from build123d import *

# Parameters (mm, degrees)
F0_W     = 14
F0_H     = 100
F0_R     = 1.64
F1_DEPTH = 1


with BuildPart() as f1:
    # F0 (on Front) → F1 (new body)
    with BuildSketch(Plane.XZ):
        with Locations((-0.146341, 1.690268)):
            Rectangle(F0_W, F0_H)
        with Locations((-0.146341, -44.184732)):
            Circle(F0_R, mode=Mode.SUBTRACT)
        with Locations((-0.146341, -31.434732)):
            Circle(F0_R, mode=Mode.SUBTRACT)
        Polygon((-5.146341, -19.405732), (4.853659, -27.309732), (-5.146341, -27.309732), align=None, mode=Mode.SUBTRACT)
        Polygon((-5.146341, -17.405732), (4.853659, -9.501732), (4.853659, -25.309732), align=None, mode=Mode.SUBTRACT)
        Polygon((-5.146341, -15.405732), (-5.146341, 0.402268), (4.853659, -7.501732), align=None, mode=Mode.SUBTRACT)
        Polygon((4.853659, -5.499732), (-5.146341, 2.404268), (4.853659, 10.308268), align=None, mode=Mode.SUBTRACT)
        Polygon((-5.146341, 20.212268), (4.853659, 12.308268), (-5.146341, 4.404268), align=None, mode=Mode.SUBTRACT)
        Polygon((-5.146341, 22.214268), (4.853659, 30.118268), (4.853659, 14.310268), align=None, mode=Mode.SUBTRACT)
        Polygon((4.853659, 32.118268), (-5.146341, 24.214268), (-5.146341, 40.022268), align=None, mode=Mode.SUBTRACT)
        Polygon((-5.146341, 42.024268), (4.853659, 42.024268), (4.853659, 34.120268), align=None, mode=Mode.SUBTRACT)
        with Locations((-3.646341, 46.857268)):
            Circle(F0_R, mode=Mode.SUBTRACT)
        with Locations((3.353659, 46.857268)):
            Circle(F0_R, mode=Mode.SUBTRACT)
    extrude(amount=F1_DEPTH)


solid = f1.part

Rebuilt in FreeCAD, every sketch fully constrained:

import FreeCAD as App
import Part
import Sketcher
Q = App.Units.Quantity


def add_polygon(sketch, points):
    """Adds a closed chain of lines whose ends are joined by coincident constraints."""
    first, n = sketch.GeometryCount, len(points)
    for a, b in zip(points, points[1:] + points[:1]):
        sketch.addGeometry(Part.LineSegment(App.Vector(*a, 0), App.Vector(*b, 0)), False)
    for i in range(n):
        sketch.addConstraint(Sketcher.Constraint("Coincident", first + i, 2, first + (i + 1) % n, 1))

doc = App.newDocument("Part")
body = doc.addObject("PartDesign::Body", "Body")

# Sketch on XZ plane
sketch1 = body.newObject("Sketcher::SketchObject", "Sketch")
sketch1.AttachmentSupport = (doc.getObject("XZ_Plane"), [""])
sketch1.MapMode = "FlatFace"
add_polygon(sketch1, [(-7.1, 51.7), (-7.1, -48.3), (6.9, -48.3), (6.9, 51.7)])  # lines 0-3
sketch1.addGeometry(Part.Circle(App.Vector(-0.1, -44.2, 0), App.Vector(0, 0, 1), 1.6), False)  # 4
sketch1.addGeometry(Part.Circle(App.Vector(-0.1, -31.4, 0), App.Vector(0, 0, 1), 1.6), False)  # 5
add_polygon(sketch1, [(-5.1, -27.3), (-5.1, -19.4), (4.9, -27.3)])  # lines 6-8
add_polygon(sketch1, [(4.9, -25.3), (-5.1, -17.4), (4.9, -9.5)])  # lines 9-11
add_polygon(sketch1, [(4.9, -7.5), (-5.1, -15.4), (-5.1, 0.4)])  # lines 12-14
sketch1.addGeometry(Part.Circle(App.Vector(-3.6, 46.9, 0), App.Vector(0, 0, 1), 1.6), False)  # 15
add_polygon(sketch1, [(4.9, 10.3), (4.9, -5.5), (-5.1, 2.4)])  # lines 16-18
add_polygon(sketch1, [(-5.1, 4.4), (-5.1, 20.2), (4.9, 12.3)])  # lines 19-21
add_polygon(sketch1, [(4.9, 14.3), (-5.1, 22.2), (4.9, 30.1)])  # lines 22-24
add_polygon(sketch1, [(-5.1, 40), (4.9, 32.1), (-5.1, 24.2)])  # lines 25-27
add_polygon(sketch1, [(4.9, 34.1), (-5.1, 42), (4.9, 42)])  # lines 28-30
sketch1.addGeometry(Part.Circle(App.Vector(3.4, 46.9, 0), App.Vector(0, 0, 1), 1.6), False)  # 31
sketch1.addConstraint([
    Sketcher.Constraint("Vertical", 0),
    Sketcher.Constraint("Horizontal", 1),
    Sketcher.Constraint("Vertical", 2),
    Sketcher.Constraint("Horizontal", 3),
    Sketcher.Constraint("Vertical", 6),
    Sketcher.Constraint("Horizontal", 8),
    Sketcher.Constraint("Vertical", 11),
    Sketcher.Constraint("Vertical", 13),
    Sketcher.Constraint("Vertical", 16),
    Sketcher.Constraint("Vertical", 19),
    Sketcher.Constraint("Vertical", 24),
    Sketcher.Constraint("Vertical", 27),
    Sketcher.Constraint("Horizontal", 29),
    Sketcher.Constraint("Vertical", 30),
    Sketcher.Constraint("Equal", 4, 5),
    Sketcher.Constraint("Equal", 5, 15),
    Sketcher.Constraint("Equal", 15, 31),
    Sketcher.Constraint("Parallel", 7, 9),
    Sketcher.Constraint("Parallel", 10, 12),
    Sketcher.Constraint("Parallel", 9, 14),
    Sketcher.Constraint("Parallel", 14, 17),
    Sketcher.Constraint("Parallel", 12, 18),
    Sketcher.Constraint("Parallel", 17, 20),
    Sketcher.Constraint("Parallel", 18, 21),
    Sketcher.Constraint("Parallel", 20, 22),
    Sketcher.Constraint("Parallel", 21, 23),
    Sketcher.Constraint("Parallel", 22, 25),
    Sketcher.Constraint("Parallel", 23, 26),
    Sketcher.Constraint("Parallel", 25, 28),
    Sketcher.Constraint("Horizontal", 15, 3, 31, 3),
    Sketcher.Constraint("Vertical", 4, 3, 5, 3),
    Sketcher.Constraint("Vertical", 8, 2, 9, 2),
    Sketcher.Constraint("Vertical", 7, 2, 10, 2),
    Sketcher.Constraint("Vertical", 9, 2, 12, 2),
    Sketcher.Constraint("Vertical", 11, 2, 14, 2),
    Sketcher.Constraint("Vertical", 14, 2, 16, 2),
    Sketcher.Constraint("Vertical", 13, 2, 17, 2),
    Sketcher.Constraint("Vertical", 17, 2, 19, 2),
    Sketcher.Constraint("Vertical", 18, 2, 20, 2),
    Sketcher.Constraint("Vertical", 21, 2, 22, 2),
    Sketcher.Constraint("Vertical", 20, 2, 23, 2),
    Sketcher.Constraint("Vertical", 24, 2, 25, 2),
    Sketcher.Constraint("Vertical", 22, 2, 26, 2),
    Sketcher.Constraint("Vertical", 27, 2, 28, 2),
    Sketcher.Constraint("Vertical", 25, 2, 29, 2),
    Sketcher.Constraint("Equal", 9, 10),
    Sketcher.Constraint("Diameter", 4, Q("3.28 mm")),
    Sketcher.Constraint("DistanceX", 1, 1, 1, 2, Q("14 mm")),
    Sketcher.Constraint("DistanceX", 8, 2, 8, 1, Q("10 mm")),
    Sketcher.Constraint("DistanceY", 0, 2, 0, 1, Q("100 mm")),
    Sketcher.Constraint("DistanceX", 15, 3, 31, 3, Q("7 mm")),
    Sketcher.Constraint("DistanceX", 0, 2, 4, 3, Q("7 mm")),
    Sketcher.Constraint("DistanceX", 6, 2, 5, 3, Q("5 mm")),
    Sketcher.Constraint("DistanceY", 1, 2, 7, 2, Q("21 mm")),
    Sketcher.Constraint("DistanceY", 6, 2, 9, 2, Q("2 mm")),
    Sketcher.Constraint("DistanceY", 9, 2, 12, 2, Q("2 mm")),
    Sketcher.Constraint("DistanceY", 18, 2, 20, 2, Q("2 mm")),
    Sketcher.Constraint("DistanceY", 23, 2, 25, 2, Q("2 mm")),
    Sketcher.Constraint("DistanceX", 15, 3, 5, 3, Q("3.5 mm")),
    Sketcher.Constraint("DistanceY", 6, 1, 6, 2, Q("7.904 mm")),
    Sketcher.Constraint("DistanceY", 4, 3, 5, 3, Q("12.75 mm")),
    Sketcher.Constraint("DistanceY", 12, 2, 17, 2, Q("17.81 mm")),
    Sketcher.Constraint("DistanceY", 21, 2, 22, 2, Q("17.81 mm")),
    Sketcher.Constraint("DistanceY", 5, 3, 15, 3, Q("78.292 mm")),
    Sketcher.Constraint("DistanceY", 0, 2, 4, 3, Q("4.125 mm")),
    Sketcher.Constraint("DistanceY", 27, 2, 28, 2, Q("2.002 mm")),
    Sketcher.Constraint("DistanceX", 4, 3, -1, 1, Q("0.146341 mm")),
    Sketcher.Constraint("DistanceY", 4, 3, -1, 1, Q("44.184732 mm")),
])
pad1 = body.newObject("PartDesign::Pad", "Pad")
pad1.Profile = sketch1
pad1.Length = 1

doc.recompute()
